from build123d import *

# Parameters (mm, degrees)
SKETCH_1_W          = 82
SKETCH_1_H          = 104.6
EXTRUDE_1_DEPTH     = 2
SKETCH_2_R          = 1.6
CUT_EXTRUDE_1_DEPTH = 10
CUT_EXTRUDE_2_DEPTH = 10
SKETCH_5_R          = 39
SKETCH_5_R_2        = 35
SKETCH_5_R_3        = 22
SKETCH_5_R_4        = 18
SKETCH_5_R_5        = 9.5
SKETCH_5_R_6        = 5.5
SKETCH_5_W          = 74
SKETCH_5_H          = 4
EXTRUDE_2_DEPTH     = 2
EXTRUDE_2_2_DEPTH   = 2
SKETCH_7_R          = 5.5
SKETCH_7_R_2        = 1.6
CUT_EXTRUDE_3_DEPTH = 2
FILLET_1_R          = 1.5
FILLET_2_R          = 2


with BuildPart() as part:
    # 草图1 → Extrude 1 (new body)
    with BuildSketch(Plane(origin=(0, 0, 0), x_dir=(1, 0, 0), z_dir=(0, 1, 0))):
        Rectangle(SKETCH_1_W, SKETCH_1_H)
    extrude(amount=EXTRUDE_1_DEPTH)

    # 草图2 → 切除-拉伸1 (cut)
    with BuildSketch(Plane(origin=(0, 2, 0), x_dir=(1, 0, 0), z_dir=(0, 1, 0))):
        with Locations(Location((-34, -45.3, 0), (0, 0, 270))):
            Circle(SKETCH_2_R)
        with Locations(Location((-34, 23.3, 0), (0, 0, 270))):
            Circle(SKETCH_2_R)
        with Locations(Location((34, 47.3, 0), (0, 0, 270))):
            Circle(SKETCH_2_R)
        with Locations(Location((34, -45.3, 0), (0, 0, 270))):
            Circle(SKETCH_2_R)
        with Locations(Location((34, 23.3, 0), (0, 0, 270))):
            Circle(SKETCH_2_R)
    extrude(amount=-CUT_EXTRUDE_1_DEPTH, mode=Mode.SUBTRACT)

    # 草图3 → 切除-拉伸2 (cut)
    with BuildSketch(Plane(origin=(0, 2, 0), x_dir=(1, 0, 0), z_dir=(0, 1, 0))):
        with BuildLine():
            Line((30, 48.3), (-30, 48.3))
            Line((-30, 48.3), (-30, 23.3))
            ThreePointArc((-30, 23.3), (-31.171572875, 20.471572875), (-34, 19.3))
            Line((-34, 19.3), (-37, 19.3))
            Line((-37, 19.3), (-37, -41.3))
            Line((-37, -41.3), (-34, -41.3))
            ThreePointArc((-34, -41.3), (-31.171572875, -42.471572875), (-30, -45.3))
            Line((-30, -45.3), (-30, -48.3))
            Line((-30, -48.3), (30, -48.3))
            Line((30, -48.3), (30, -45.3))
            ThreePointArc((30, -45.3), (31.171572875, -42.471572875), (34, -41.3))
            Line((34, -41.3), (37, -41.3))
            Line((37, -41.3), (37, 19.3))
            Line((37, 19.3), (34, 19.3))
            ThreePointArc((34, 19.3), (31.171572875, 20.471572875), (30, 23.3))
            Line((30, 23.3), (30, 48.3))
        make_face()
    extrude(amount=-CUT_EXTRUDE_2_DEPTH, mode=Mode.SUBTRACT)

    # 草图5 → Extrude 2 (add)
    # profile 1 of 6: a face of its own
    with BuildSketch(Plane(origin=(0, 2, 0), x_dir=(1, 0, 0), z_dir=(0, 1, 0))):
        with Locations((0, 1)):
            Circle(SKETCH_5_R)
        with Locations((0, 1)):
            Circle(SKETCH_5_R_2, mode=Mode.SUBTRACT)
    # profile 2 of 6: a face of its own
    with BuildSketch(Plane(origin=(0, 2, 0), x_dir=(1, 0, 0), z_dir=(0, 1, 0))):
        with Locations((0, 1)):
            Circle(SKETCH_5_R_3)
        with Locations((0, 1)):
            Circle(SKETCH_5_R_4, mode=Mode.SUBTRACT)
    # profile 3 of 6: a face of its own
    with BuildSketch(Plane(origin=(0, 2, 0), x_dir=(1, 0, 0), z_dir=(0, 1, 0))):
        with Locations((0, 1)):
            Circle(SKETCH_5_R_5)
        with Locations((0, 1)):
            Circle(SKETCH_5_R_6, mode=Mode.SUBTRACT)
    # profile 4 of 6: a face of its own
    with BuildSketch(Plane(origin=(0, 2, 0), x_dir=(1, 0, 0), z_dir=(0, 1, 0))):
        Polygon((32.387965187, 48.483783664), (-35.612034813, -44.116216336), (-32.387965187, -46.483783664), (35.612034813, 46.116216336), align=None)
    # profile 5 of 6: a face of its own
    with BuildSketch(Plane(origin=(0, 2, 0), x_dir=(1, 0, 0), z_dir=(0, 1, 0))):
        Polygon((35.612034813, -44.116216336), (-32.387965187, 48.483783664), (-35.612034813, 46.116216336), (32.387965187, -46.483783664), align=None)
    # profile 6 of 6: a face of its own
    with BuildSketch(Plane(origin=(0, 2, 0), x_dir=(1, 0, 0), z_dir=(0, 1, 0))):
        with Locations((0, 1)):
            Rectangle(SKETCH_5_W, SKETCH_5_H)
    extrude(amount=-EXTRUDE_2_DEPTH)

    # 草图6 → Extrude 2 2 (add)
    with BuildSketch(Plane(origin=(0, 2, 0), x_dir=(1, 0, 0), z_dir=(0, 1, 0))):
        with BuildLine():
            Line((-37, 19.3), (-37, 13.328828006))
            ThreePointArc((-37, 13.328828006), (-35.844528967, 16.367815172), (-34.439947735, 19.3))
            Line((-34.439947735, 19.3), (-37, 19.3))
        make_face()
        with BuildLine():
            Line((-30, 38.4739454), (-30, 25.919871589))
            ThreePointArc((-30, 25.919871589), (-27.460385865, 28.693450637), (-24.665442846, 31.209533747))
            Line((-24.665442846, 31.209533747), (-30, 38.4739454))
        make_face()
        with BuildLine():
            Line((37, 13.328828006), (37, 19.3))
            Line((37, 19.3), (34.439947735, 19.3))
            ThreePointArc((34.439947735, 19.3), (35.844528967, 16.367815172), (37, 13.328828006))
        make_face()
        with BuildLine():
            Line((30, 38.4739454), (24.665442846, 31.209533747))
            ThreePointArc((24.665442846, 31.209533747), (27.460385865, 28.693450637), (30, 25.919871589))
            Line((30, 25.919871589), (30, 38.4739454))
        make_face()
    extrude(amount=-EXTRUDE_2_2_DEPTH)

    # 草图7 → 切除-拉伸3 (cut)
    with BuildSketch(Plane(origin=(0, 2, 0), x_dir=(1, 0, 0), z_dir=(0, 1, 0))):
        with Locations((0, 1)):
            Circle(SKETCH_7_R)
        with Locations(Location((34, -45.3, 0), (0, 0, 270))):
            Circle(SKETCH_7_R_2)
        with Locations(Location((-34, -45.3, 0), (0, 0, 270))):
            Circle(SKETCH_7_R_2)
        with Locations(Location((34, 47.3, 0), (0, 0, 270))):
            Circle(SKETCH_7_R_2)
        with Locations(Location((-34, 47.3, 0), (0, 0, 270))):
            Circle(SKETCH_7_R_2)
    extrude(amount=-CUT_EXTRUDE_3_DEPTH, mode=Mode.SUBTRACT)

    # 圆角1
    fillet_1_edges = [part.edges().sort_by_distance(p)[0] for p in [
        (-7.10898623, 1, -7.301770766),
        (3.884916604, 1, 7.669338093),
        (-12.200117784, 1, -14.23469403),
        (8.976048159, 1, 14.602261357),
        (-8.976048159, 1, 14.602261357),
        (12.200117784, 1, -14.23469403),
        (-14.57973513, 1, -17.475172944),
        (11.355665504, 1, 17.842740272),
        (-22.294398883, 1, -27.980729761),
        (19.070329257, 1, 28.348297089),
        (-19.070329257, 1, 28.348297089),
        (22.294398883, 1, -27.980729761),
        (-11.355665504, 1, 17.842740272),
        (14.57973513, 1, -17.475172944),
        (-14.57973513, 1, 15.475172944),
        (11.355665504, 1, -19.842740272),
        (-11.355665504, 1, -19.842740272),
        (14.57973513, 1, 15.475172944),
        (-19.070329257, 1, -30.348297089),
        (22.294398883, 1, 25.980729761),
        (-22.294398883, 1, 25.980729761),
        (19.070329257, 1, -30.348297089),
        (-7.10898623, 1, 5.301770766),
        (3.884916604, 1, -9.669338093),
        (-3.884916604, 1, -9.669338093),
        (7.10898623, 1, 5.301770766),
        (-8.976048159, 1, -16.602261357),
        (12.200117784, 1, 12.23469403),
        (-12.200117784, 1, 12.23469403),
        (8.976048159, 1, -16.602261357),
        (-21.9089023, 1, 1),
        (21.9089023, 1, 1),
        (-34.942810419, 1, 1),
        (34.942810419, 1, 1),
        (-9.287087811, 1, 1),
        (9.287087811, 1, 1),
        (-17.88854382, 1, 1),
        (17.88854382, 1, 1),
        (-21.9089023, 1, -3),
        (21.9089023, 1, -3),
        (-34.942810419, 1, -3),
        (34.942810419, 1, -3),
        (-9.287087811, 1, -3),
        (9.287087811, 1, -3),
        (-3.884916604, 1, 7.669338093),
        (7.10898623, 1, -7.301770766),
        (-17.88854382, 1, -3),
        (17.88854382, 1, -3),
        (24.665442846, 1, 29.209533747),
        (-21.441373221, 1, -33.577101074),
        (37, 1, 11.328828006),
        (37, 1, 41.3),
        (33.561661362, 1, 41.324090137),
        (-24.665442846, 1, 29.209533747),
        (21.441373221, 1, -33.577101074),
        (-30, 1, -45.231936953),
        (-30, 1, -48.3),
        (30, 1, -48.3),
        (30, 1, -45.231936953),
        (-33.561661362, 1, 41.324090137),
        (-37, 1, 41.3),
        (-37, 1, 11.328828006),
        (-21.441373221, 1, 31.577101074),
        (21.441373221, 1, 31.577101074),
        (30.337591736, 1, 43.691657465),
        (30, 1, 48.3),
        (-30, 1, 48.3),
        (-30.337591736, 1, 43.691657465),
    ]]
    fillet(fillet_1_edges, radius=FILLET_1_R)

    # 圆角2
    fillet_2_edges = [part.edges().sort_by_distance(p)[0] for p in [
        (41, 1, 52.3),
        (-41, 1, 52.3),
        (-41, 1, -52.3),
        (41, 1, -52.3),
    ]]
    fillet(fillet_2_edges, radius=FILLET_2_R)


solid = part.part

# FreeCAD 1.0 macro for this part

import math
import FreeCAD as App
import Part
import Sketcher


def edges_at(feature, points):
    """Names of the edges that pass closest to the given points."""
    edges = feature.Shape.Edges
    near = lambda p: min(range(len(edges)), key=lambda i: edges[i].distToShape(Part.Vertex(*p))[0])
    return sorted({f"Edge{near(p) + 1}" for p in points})

doc = App.newDocument("Part")
body = doc.addObject("PartDesign::Body", "Body")

# Sketch on XZ plane
sketch1 = body.newObject("Sketcher::SketchObject", "Sketch")
sketch1.AttachmentSupport = (doc.getObject("XZ_Plane"), [""])
sketch1.MapMode = "FlatFace"
sketch1.addGeometry([
    Part.LineSegment(App.Vector(-41, -52.3, 0), App.Vector(-41, 52.3, 0)),
    Part.LineSegment(App.Vector(-41, 52.3, 0), App.Vector(41, 52.3, 0)),
    Part.LineSegment(App.Vector(41, 52.3, 0), App.Vector(41, -52.3, 0)),
    Part.LineSegment(App.Vector(41, -52.3, 0), App.Vector(-41, -52.3, 0)),
], False)
sketch1.addConstraint([
    Sketcher.Constraint("Coincident", 0, 2, 1, 1),
    Sketcher.Constraint("Coincident", 1, 2, 2, 1),
    Sketcher.Constraint("Coincident", 2, 2, 3, 1),
    Sketcher.Constraint("Coincident", 3, 2, 0, 1),
    Sketcher.Constraint("Vertical", 0),
    Sketcher.Constraint("Horizontal", 1),
    Sketcher.Constraint("Vertical", 2),
    Sketcher.Constraint("Horizontal", 3),
    Sketcher.Constraint("Symmetric", 0, 2, 2, 2, -1, 1),
    Sketcher.Constraint("DistanceX", 1, 1, 1, 2, 82.0),
    Sketcher.Constraint("DistanceY", 0, 1, 0, 2, 104.6),
])
pad1 = body.newObject("PartDesign::Pad", "Pad")
pad1.Profile = sketch1
pad1.Length = 2
pad1.Reversed = True

# Sketch on XZ plane
sketch2 = body.newObject("Sketcher::SketchObject", "Sketch001")
sketch2.AttachmentSupport = (doc.getObject("XZ_Plane"), [""])
sketch2.MapMode = "FlatFace"
sketch2.AttachmentOffset = App.Placement(App.Vector(0, 0, -2), App.Rotation())
sketch2.addGeometry([
    Part.Circle(App.Vector(-34, 45.3, 0), App.Vector(0, 0, 1), 1.6),  # 0
    Part.Circle(App.Vector(-34, -23.3, 0), App.Vector(0, 0, 1), 1.6),  # 1
    Part.Circle(App.Vector(34, -47.3, 0), App.Vector(0, 0, 1), 1.6),  # 2
    Part.Circle(App.Vector(34, 45.3, 0), App.Vector(0, 0, 1), 1.6),  # 3
    Part.Circle(App.Vector(34, -23.3, 0), App.Vector(0, 0, 1), 1.6),  # 4
], False)
sketch2.addConstraint([
    Sketcher.Constraint("Equal", 0, 1),
    Sketcher.Constraint("Equal", 1, 2),
    Sketcher.Constraint("Equal", 2, 3),
    Sketcher.Constraint("Equal", 3, 4),
    Sketcher.Constraint("Symmetric", 0, 3, 3, 3, -2),
    Sketcher.Constraint("Symmetric", 1, 3, 4, 3, -2),
    Sketcher.Constraint("Vertical", 0, 3, 1, 3),
    Sketcher.Constraint("Vertical", 2, 3, 3, 3),
    Sketcher.Constraint("Diameter", 0, 3.2),
    Sketcher.Constraint("DistanceX", 0, 3, -1, 1, 34.0),
    Sketcher.Constraint("DistanceY", 2, 3, 1, 3, 24.0),
    Sketcher.Constraint("DistanceY", -1, 1, 0, 3, 45.3),
    Sketcher.Constraint("DistanceY", 1, 3, -1, 1, 23.3),
])
pocket1 = body.newObject("PartDesign::Pocket", "Pocket")
pocket1.Profile = sketch2
pocket1.Length = 10
pocket1.Reversed = True

# Sketch on XZ plane
sketch3 = body.newObject("Sketcher::SketchObject", "Sketch002")
sketch3.AttachmentSupport = (doc.getObject("XZ_Plane"), [""])
sketch3.MapMode = "FlatFace"
sketch3.AttachmentOffset = App.Placement(App.Vector(0, 0, -2), App.Rotation())
sketch3.addGeometry([
    Part.LineSegment(App.Vector(30, -48.3, 0), App.Vector(-30, -48.3, 0)),  # 0
    Part.LineSegment(App.Vector(-30, -48.3, 0), App.Vector(-30, -23.3, 0)),  # 1
    Part.ArcOfCircle(Part.Circle(App.Vector(-34, -23.3, 0), App.Vector(0, 0, 1), 4), math.radians(0), math.radians(90)),  # 2
    Part.LineSegment(App.Vector(-34, -19.3, 0), App.Vector(-37, -19.3, 0)),  # 3
    Part.LineSegment(App.Vector(-37, -19.3, 0), App.Vector(-37, 41.3, 0)),  # 4
    Part.LineSegment(App.Vector(-37, 41.3, 0), App.Vector(-34, 41.3, 0)),  # 5
    Part.ArcOfCircle(Part.Circle(App.Vector(-34, 45.3, 0), App.Vector(0, 0, 1), 4), math.radians(-90), math.radians(0)),  # 6
    Part.LineSegment(App.Vector(-30, 45.3, 0), App.Vector(-30, 48.3, 0)),  # 7
    Part.LineSegment(App.Vector(-30, 48.3, 0), App.Vector(30, 48.3, 0)),  # 8
    Part.LineSegment(App.Vector(30, 48.3, 0), App.Vector(30, 45.3, 0)),  # 9
    Part.ArcOfCircle(Part.Circle(App.Vector(34, 45.3, 0), App.Vector(0, 0, 1), 4), math.radians(180), math.radians(270)),  # 10
    Part.LineSegment(App.Vector(34, 41.3, 0), App.Vector(37, 41.3, 0)),  # 11
    Part.LineSegment(App.Vector(37, 41.3, 0), App.Vector(37, -19.3, 0)),  # 12
    Part.LineSegment(App.Vector(37, -19.3, 0), App.Vector(34, -19.3, 0)),  # 13
    Part.ArcOfCircle(Part.Circle(App.Vector(34, -23.3, 0), App.Vector(0, 0, 1), 4), math.radians(90), math.radians(180)),  # 14
    Part.LineSegment(App.Vector(30, -23.3, 0), App.Vector(30, -48.3, 0)),  # 15
], False)
sketch3.addConstraint([
    Sketcher.Constraint("Coincident", 0, 2, 1, 1),
    Sketcher.Constraint("Tangent", 1, 2, 2, 1),
    Sketcher.Constraint("Tangent", 2, 2, 3, 1),
    Sketcher.Constraint("Coincident", 3, 2, 4, 1),
    Sketcher.Constraint("Coincident", 4, 2, 5, 1),
    Sketcher.Constraint("Tangent", 5, 2, 6, 1),
    Sketcher.Constraint("Tangent", 6, 2, 7, 1),
    Sketcher.Constraint("Coincident", 7, 2, 8, 1),
    Sketcher.Constraint("Coincident", 8, 2, 9, 1),
    Sketcher.Constraint("Tangent", 9, 2, 10, 1),
    Sketcher.Constraint("Tangent", 10, 2, 11, 1),
    Sketcher.Constraint("Coincident", 11, 2, 12, 1),
    Sketcher.Constraint("Coincident", 12, 2, 13, 1),
    Sketcher.Constraint("Tangent", 13, 2, 14, 1),
    Sketcher.Constraint("Tangent", 14, 2, 15, 1),
    Sketcher.Constraint("Coincident", 15, 2, 0, 1),
    Sketcher.Constraint("Horizontal", 0),
    Sketcher.Constraint("Vertical", 1),
    Sketcher.Constraint("Horizontal", 3),
    Sketcher.Constraint("Vertical", 4),
    Sketcher.Constraint("Horizontal", 5),
    Sketcher.Constraint("Vertical", 7),
    Sketcher.Constraint("Horizontal", 8),
    Sketcher.Constraint("Vertical", 9),
    Sketcher.Constraint("Horizontal", 11),
    Sketcher.Constraint("Vertical", 12),
    Sketcher.Constraint("Horizontal", 13),
    Sketcher.Constraint("Vertical", 15),
    Sketcher.Constraint("Equal", 2, 6),
    Sketcher.Constraint("Equal", 6, 10),
    Sketcher.Constraint("Equal", 10, 14),
    Sketcher.Constraint("Symmetric", 0, 2, 8, 2, -1, 1),
    Sketcher.Constraint("Symmetric", 6, 3, 10, 3, -2),
    Sketcher.Constraint("Symmetric", 2, 3, 14, 3, -2),
    Sketcher.Constraint("Equal", 5, 11),
    Sketcher.Constraint("Equal", 13, 7),
    Sketcher.Constraint("Radius", 2, 4.0),
    Sketcher.Constraint("DistanceX", 0, 2, 0, 1, 60.0),
    Sketcher.Constraint("DistanceX", 3, 2, 3, 1, 3.0),
    Sketcher.Constraint("DistanceY", 1, 1, 1, 2, 25.0),
    Sketcher.Constraint("DistanceY", 4, 1, 4, 2, 60.6),
])
pocket2 = body.newObject("PartDesign::Pocket", "Pocket001")
pocket2.Profile = sketch3
pocket2.Length = 10
pocket2.Reversed = True

# Sketch on XZ plane
sketch4 = body.newObject("Sketcher::SketchObject", "Sketch003")
sketch4.AttachmentSupport = (doc.getObject("XZ_Plane"), [""])
sketch4.MapMode = "FlatFace"
sketch4.AttachmentOffset = App.Placement(App.Vector(0, 0, -2), App.Rotation())
sketch4.addGeometry([
    Part.ArcOfCircle(Part.Circle(App.Vector(0, -1, 0), App.Vector(0, 0, 1), 39), math.radians(-50.769092), math.radians(50.769092)),  # 0
    Part.LineSegment(App.Vector(24.665443, -31.209534, 0), App.Vector(35.612035, -46.116216, 0)),  # 1
    Part.LineSegment(App.Vector(35.612035, -46.116216, 0), App.Vector(32.387965, -48.483784, 0)),  # 2
    Part.LineSegment(App.Vector(32.387965, -48.483784, 0), App.Vector(21.441373, -33.577101, 0)),  # 3
    Part.ArcOfCircle(Part.Circle(App.Vector(0, -1, 0), App.Vector(0, 0, 1), 39), math.radians(-123.351839), math.radians(-56.648161)),  # 4
    Part.LineSegment(App.Vector(-21.441373, -33.577101, 0), App.Vector(-32.387965, -48.483784, 0)),  # 5
    Part.LineSegment(App.Vector(-32.387965, -48.483784, 0), App.Vector(-35.612035, -46.116216, 0)),  # 6
    Part.LineSegment(App.Vector(-35.612035, -46.116216, 0), App.Vector(-24.665443, -31.209534, 0)),  # 7
    Part.ArcOfCircle(Part.Circle(App.Vector(0, -1, 0), App.Vector(0, 0, 1), 39), math.radians(129.230908), math.radians(230.769092)),  # 8
    Part.LineSegment(App.Vector(-24.665443, 29.209534, 0), App.Vector(-35.612035, 44.116216, 0)),  # 9
    Part.LineSegment(App.Vector(-35.612035, 44.116216, 0), App.Vector(-32.387965, 46.483784, 0)),  # 10
    Part.LineSegment(App.Vector(-32.387965, 46.483784, 0), App.Vector(-21.441373, 31.577101, 0)),  # 11
    Part.ArcOfCircle(Part.Circle(App.Vector(0, -1, 0), App.Vector(0, 0, 1), 39), math.radians(56.648161), math.radians(123.351839)),  # 12
    Part.LineSegment(App.Vector(21.441373, 31.577101, 0), App.Vector(32.387965, 46.483784, 0)),  # 13
    Part.LineSegment(App.Vector(32.387965, 46.483784, 0), App.Vector(35.612035, 44.116216, 0)),  # 14
    Part.LineSegment(App.Vector(35.612035, 44.116216, 0), App.Vector(24.665443, 29.209534, 0)),  # 15
    Part.ArcOfCircle(Part.Circle(App.Vector(0, -1, 0), App.Vector(0, 0, 1), 35), math.radians(3.275829), math.radians(50.432797)),  # 16
    Part.LineSegment(App.Vector(22.294399, 25.98073, 0), App.Vector(14.579735, 15.475173, 0)),  # 17
    Part.ArcOfCircle(Part.Circle(App.Vector(0, -1, 0), App.Vector(0, 0, 1), 22), math.radians(5.215909), math.radians(48.492718)),  # 18
    Part.LineSegment(App.Vector(21.908902, 1, 0), App.Vector(34.94281, 1, 0)),  # 19
    Part.ArcOfCircle(Part.Circle(App.Vector(0, -1, 0), App.Vector(0, 0, 1), 35), math.radians(-50.432797), math.radians(-3.275829)),  # 20
    Part.LineSegment(App.Vector(34.94281, -3, 0), App.Vector(21.908902, -3, 0)),  # 21
    Part.ArcOfCircle(Part.Circle(App.Vector(0, -1, 0), App.Vector(0, 0, 1), 22), math.radians(-48.492718), math.radians(-5.215909)),  # 22
    Part.LineSegment(App.Vector(14.579735, -17.475173, 0), App.Vector(22.294399, -27.98073, 0)),  # 23
    Part.ArcOfCircle(Part.Circle(App.Vector(0, -1, 0), App.Vector(0, 0, 1), 35), math.radians(56.984455), math.radians(123.015545)),  # 24
    Part.LineSegment(App.Vector(-19.070329, 28.348297, 0), App.Vector(-11.355666, 17.84274, 0)),  # 25
    Part.ArcOfCircle(Part.Circle(App.Vector(0, -1, 0), App.Vector(0, 0, 1), 22), math.radians(58.924535), math.radians(121.075465)),  # 26
    Part.LineSegment(App.Vector(11.355666, 17.84274, 0), App.Vector(19.070329, 28.348297, 0)),  # 27
    Part.LineSegment(App.Vector(19.070329, -30.348297, 0), App.Vector(11.355666, -19.84274, 0)),  # 28
    Part.ArcOfCircle(Part.Circle(App.Vector(0, -1, 0), App.Vector(0, 0, 1), 22), math.radians(-121.075465), math.radians(-58.924535)),  # 29
    Part.LineSegment(App.Vector(-11.355666, -19.84274, 0), App.Vector(-19.070329, -30.348297, 0)),  # 30
    Part.ArcOfCircle(Part.Circle(App.Vector(0, -1, 0), App.Vector(0, 0, 1), 35), math.radians(-123.015545), math.radians(-56.984455)),  # 31
    Part.ArcOfCircle(Part.Circle(App.Vector(0, -1, 0), App.Vector(0, 0, 1), 35), math.radians(-176.724171), math.radians(-129.567203)),  # 32
    Part.LineSegment(App.Vector(-22.294399, -27.98073, 0), App.Vector(-14.579735, -17.475173, 0)),  # 33
    Part.ArcOfCircle(Part.Circle(App.Vector(0, -1, 0), App.Vector(0, 0, 1), 22), math.radians(-174.784091), math.radians(-131.507282)),  # 34
    Part.LineSegment(App.Vector(-21.908902, -3, 0), App.Vector(-34.94281, -3, 0)),  # 35
    Part.ArcOfCircle(Part.Circle(App.Vector(0, -1, 0), App.Vector(0, 0, 1), 35), math.radians(129.567203), math.radians(176.724171)),  # 36
    Part.LineSegment(App.Vector(-34.94281, 1, 0), App.Vector(-21.908902, 1, 0)),  # 37
    Part.ArcOfCircle(Part.Circle(App.Vector(0, -1, 0), App.Vector(0, 0, 1), 22), math.radians(131.507282), math.radians(174.784091)),  # 38
    Part.LineSegment(App.Vector(-14.579735, 15.475173, 0), App.Vector(-22.294399, 25.98073, 0)),  # 39
    Part.ArcOfCircle(Part.Circle(App.Vector(0, -1, 0), App.Vector(0, 0, 1), 18), math.radians(6.37937), math.radians(47.329256)),  # 40
    Part.LineSegment(App.Vector(12.200118, 12.234694, 0), App.Vector(7.108986, 5.301771, 0)),  # 41
    Part.ArcOfCircle(Part.Circle(App.Vector(0, -1, 0), App.Vector(0, 0, 1), 9.5), math.radians(12.153197), math.radians(41.555429)),  # 42
    Part.LineSegment(App.Vector(9.287088, 1, 0), App.Vector(17.888544, 1, 0)),  # 43
    Part.ArcOfCircle(Part.Circle(App.Vector(0, -1, 0), App.Vector(0, 0, 1), 18), math.radians(60.087997), math.radians(119.912003)),  # 44
    Part.LineSegment(App.Vector(-8.976048, 14.602261, 0), App.Vector(-3.884917, 7.669338, 0)),  # 45
    Part.ArcOfCircle(Part.Circle(App.Vector(0, -1, 0), App.Vector(0, 0, 1), 9.5), math.radians(65.861824), math.radians(114.138176)),  # 46
    Part.LineSegment(App.Vector(3.884917, 7.669338, 0), App.Vector(8.976048, 14.602261, 0)),  # 47
    Part.ArcOfCircle(Part.Circle(App.Vector(0, -1, 0), App.Vector(0, 0, 1), 18), math.radians(-47.329256), math.radians(-6.37937)),  # 48
    Part.LineSegment(App.Vector(17.888544, -3, 0), App.Vector(9.287088, -3, 0)),  # 49
    Part.ArcOfCircle(Part.Circle(App.Vector(0, -1, 0), App.Vector(0, 0, 1), 9.5), math.radians(-41.555429), math.radians(-12.153197)),  # 50
    Part.LineSegment(App.Vector(7.108986, -7.301771, 0), App.Vector(12.200118, -14.234694, 0)),  # 51
    Part.LineSegment(App.Vector(8.976048, -16.602261, 0), App.Vector(3.884917, -9.669338, 0)),  # 52
    Part.ArcOfCircle(Part.Circle(App.Vector(0, -1, 0), App.Vector(0, 0, 1), 9.5), math.radians(-114.138176), math.radians(-65.861824)),  # 53
    Part.LineSegment(App.Vector(-3.884917, -9.669338, 0), App.Vector(-8.976048, -16.602261, 0)),  # 54
    Part.ArcOfCircle(Part.Circle(App.Vector(0, -1, 0), App.Vector(0, 0, 1), 18), math.radians(-119.912003), math.radians(-60.087997)),  # 55
    Part.LineSegment(App.Vector(-7.108986, 5.301771, 0), App.Vector(-12.200118, 12.234694, 0)),  # 56
    Part.ArcOfCircle(Part.Circle(App.Vector(0, -1, 0), App.Vector(0, 0, 1), 18), math.radians(132.670744), math.radians(173.62063)),  # 57
    Part.LineSegment(App.Vector(-17.888544, 1, 0), App.Vector(-9.287088, 1, 0)),  # 58
    Part.ArcOfCircle(Part.Circle(App.Vector(0, -1, 0), App.Vector(0, 0, 1), 9.5), math.radians(138.444571), math.radians(167.846803)),  # 59
    Part.ArcOfCircle(Part.Circle(App.Vector(0, -1, 0), App.Vector(0, 0, 1), 5.5), math.radians(21.323686), math.radians(32.38494)),  # 60
    Part.LineSegment(App.Vector(4.644578, 1.945827, 0), App.Vector(3.950018, 1, 0)),  # 61
    Part.LineSegment(App.Vector(3.950018, 1, 0), App.Vector(5.123475, 1, 0)),  # 62
    Part.ArcOfCircle(Part.Circle(App.Vector(0, -1, 0), App.Vector(0, 0, 1), 5.5), math.radians(75.032313), math.radians(104.967687)),  # 63
    Part.LineSegment(App.Vector(-1.420508, 4.313394, 0), App.Vector(0, 2.378996, 0)),  # 64
    Part.LineSegment(App.Vector(0, 2.378996, 0), App.Vector(1.420508, 4.313394, 0)),  # 65
    Part.ArcOfCircle(Part.Circle(App.Vector(0, -1, 0), App.Vector(0, 0, 1), 5.5), math.radians(-32.38494), math.radians(-21.323686)),  # 66
    Part.LineSegment(App.Vector(5.123475, -3, 0), App.Vector(3.950018, -3, 0)),  # 67
    Part.LineSegment(App.Vector(3.950018, -3, 0), App.Vector(4.644578, -3.945827, 0)),  # 68
    Part.LineSegment(App.Vector(1.420508, -6.313394, 0), App.Vector(0, -4.378996, 0)),  # 69
    Part.LineSegment(App.Vector(0, -4.378996, 0), App.Vector(-1.420508, -6.313394, 0)),  # 70
    Part.ArcOfCircle(Part.Circle(App.Vector(0, -1, 0), App.Vector(0, 0, 1), 5.5), math.radians(-104.967687), math.radians(-75.032313)),  # 71
    Part.ArcOfCircle(Part.Circle(App.Vector(0, -1, 0), App.Vector(0, 0, 1), 18), math.radians(-173.62063), math.radians(-132.670744)),  # 72
    Part.LineSegment(App.Vector(-12.200118, -14.234694, 0), App.Vector(-7.108986, -7.301771, 0)),  # 73
    Part.ArcOfCircle(Part.Circle(App.Vector(0, -1, 0), App.Vector(0, 0, 1), 9.5), math.radians(-167.846803), math.radians(-138.444571)),  # 74
    Part.LineSegment(App.Vector(-9.287088, -3, 0), App.Vector(-17.888544, -3, 0)),  # 75
    Part.LineSegment(App.Vector(-3.950018, 1, 0), App.Vector(-4.644578, 1.945827, 0)),  # 76
    Part.ArcOfCircle(Part.Circle(App.Vector(0, -1, 0), App.Vector(0, 0, 1), 5.5), math.radians(147.61506), math.radians(158.676314)),  # 77
    Part.LineSegment(App.Vector(-5.123475, 1, 0), App.Vector(-3.950018, 1, 0)),  # 78
    Part.LineSegment(App.Vector(-4.644578, -3.945827, 0), App.Vector(-3.950018, -3, 0)),  # 79
    Part.LineSegment(App.Vector(-3.950018, -3, 0), App.Vector(-5.123475, -3, 0)),  # 80
    Part.ArcOfCircle(Part.Circle(App.Vector(0, -1, 0), App.Vector(0, 0, 1), 5.5), math.radians(-158.676314), math.radians(-147.61506)),  # 81
], False)
sketch4.addConstraint([
    Sketcher.Constraint("Coincident", 0, 1, 1, 1),
    Sketcher.Constraint("Coincident", 1, 2, 2, 1),
    Sketcher.Constraint("Coincident", 2, 2, 3, 1),
    Sketcher.Constraint("Coincident", 3, 2, 4, 2),
    Sketcher.Constraint("Coincident", 4, 1, 5, 1),
    Sketcher.Constraint("Coincident", 5, 2, 6, 1),
    Sketcher.Constraint("Coincident", 6, 2, 7, 1),
    Sketcher.Constraint("Coincident", 7, 2, 8, 2),
    Sketcher.Constraint("Coincident", 8, 1, 9, 1),
    Sketcher.Constraint("Coincident", 9, 2, 10, 1),
    Sketcher.Constraint("Coincident", 10, 2, 11, 1),
    Sketcher.Constraint("Coincident", 11, 2, 12, 2),
    Sketcher.Constraint("Coincident", 12, 1, 13, 1),
    Sketcher.Constraint("Coincident", 13, 2, 14, 1),
    Sketcher.Constraint("Coincident", 14, 2, 15, 1),
    Sketcher.Constraint("Coincident", 15, 2, 0, 2),
    Sketcher.Constraint("Coincident", 16, 2, 17, 1),
    Sketcher.Constraint("Coincident", 17, 2, 18, 2),
    Sketcher.Constraint("Coincident", 18, 1, 19, 1),
    Sketcher.Constraint("Coincident", 19, 2, 16, 1),
    Sketcher.Constraint("Coincident", 20, 2, 21, 1),
    Sketcher.Constraint("Coincident", 21, 2, 22, 2),
    Sketcher.Constraint("Coincident", 22, 1, 23, 1),
    Sketcher.Constraint("Coincident", 23, 2, 20, 1),
    Sketcher.Constraint("Coincident", 24, 2, 25, 1),
    Sketcher.Constraint("Coincident", 25, 2, 26, 2),
    Sketcher.Constraint("Coincident", 26, 1, 27, 1),
    Sketcher.Constraint("Coincident", 27, 2, 24, 1),
    Sketcher.Constraint("Coincident", 28, 2, 29, 2),
    Sketcher.Constraint("Coincident", 29, 1, 30, 1),
    Sketcher.Constraint("Coincident", 30, 2, 31, 1),
    Sketcher.Constraint("Coincident", 31, 2, 28, 1),
    Sketcher.Constraint("Coincident", 32, 2, 33, 1),
    Sketcher.Constraint("Coincident", 33, 2, 34, 2),
    Sketcher.Constraint("Coincident", 34, 1, 35, 1),
    Sketcher.Constraint("Coincident", 35, 2, 32, 1),
    Sketcher.Constraint("Coincident", 36, 2, 37, 1),
    Sketcher.Constraint("Coincident", 37, 2, 38, 2),
    Sketcher.Constraint("Coincident", 38, 1, 39, 1),
    Sketcher.Constraint("Coincident", 39, 2, 36, 1),
    Sketcher.Constraint("Coincident", 40, 2, 41, 1),
    Sketcher.Constraint("Coincident", 41, 2, 42, 2),
    Sketcher.Constraint("Coincident", 42, 1, 43, 1),
    Sketcher.Constraint("Coincident", 43, 2, 40, 1),
    Sketcher.Constraint("Coincident", 44, 2, 45, 1),
    Sketcher.Constraint("Coincident", 45, 2, 46, 2),
    Sketcher.Constraint("Coincident", 46, 1, 47, 1),
    Sketcher.Constraint("Coincident", 47, 2, 44, 1),
    Sketcher.Constraint("Coincident", 48, 2, 49, 1),
    Sketcher.Constraint("Coincident", 49, 2, 50, 2),
    Sketcher.Constraint("Coincident", 50, 1, 51, 1),
    Sketcher.Constraint("Coincident", 51, 2, 48, 1),
    Sketcher.Constraint("Coincident", 52, 2, 53, 2),
    Sketcher.Constraint("Coincident", 53, 1, 54, 1),
    Sketcher.Constraint("Coincident", 54, 2, 55, 1),
    Sketcher.Constraint("Coincident", 55, 2, 52, 1),
    Sketcher.Constraint("Coincident", 56, 2, 57, 1),
    Sketcher.Constraint("Coincident", 57, 2, 58, 1),
    Sketcher.Constraint("Coincident", 58, 2, 59, 2),
    Sketcher.Constraint("Coincident", 59, 1, 56, 1),
    Sketcher.Constraint("Coincident", 60, 2, 61, 1),
    Sketcher.Constraint("Coincident", 61, 2, 62, 1),
    Sketcher.Constraint("Coincident", 62, 2, 60, 1),
    Sketcher.Constraint("Coincident", 63, 2, 64, 1),
    Sketcher.Constraint("Coincident", 64, 2, 65, 1),
    Sketcher.Constraint("Coincident", 65, 2, 63, 1),
    Sketcher.Constraint("Coincident", 66, 2, 67, 1),
    Sketcher.Constraint("Coincident", 67, 2, 68, 1),
    Sketcher.Constraint("Coincident", 68, 2, 66, 1),
    Sketcher.Constraint("Coincident", 69, 2, 70, 1),
    Sketcher.Constraint("Coincident", 70, 2, 71, 1),
    Sketcher.Constraint("Coincident", 71, 2, 69, 1),
    Sketcher.Constraint("Coincident", 72, 2, 73, 1),
    Sketcher.Constraint("Coincident", 73, 2, 74, 2),
    Sketcher.Constraint("Coincident", 74, 1, 75, 1),
    Sketcher.Constraint("Coincident", 75, 2, 72, 1),
    Sketcher.Constraint("Coincident", 76, 2, 77, 1),
    Sketcher.Constraint("Coincident", 77, 2, 78, 1),
    Sketcher.Constraint("Coincident", 78, 2, 76, 1),
    Sketcher.Constraint("Coincident", 79, 2, 80, 1),
    Sketcher.Constraint("Coincident", 80, 2, 81, 1),
    Sketcher.Constraint("Coincident", 81, 2, 79, 1),
    Sketcher.Constraint("Horizontal", 19),
    Sketcher.Constraint("Horizontal", 21),
    Sketcher.Constraint("Horizontal", 35),
    Sketcher.Constraint("Horizontal", 37),
    Sketcher.Constraint("Horizontal", 43),
    Sketcher.Constraint("Horizontal", 49),
    Sketcher.Constraint("Horizontal", 58),
    Sketcher.Constraint("Horizontal", 62),
    Sketcher.Constraint("Horizontal", 67),
    Sketcher.Constraint("Horizontal", 75),
    Sketcher.Constraint("Horizontal", 78),
    Sketcher.Constraint("Horizontal", 80),
    Sketcher.Constraint("Coincident", 4, 3, 0, 3),
    Sketcher.Constraint("Coincident", 8, 3, 0, 3),
    Sketcher.Constraint("Coincident", 12, 3, 0, 3),
    Sketcher.Constraint("Coincident", 16, 3, 0, 3),
    Sketcher.Constraint("Coincident", 18, 3, 0, 3),
    Sketcher.Constraint("Coincident", 20, 3, 0, 3),
    Sketcher.Constraint("Coincident", 22, 3, 0, 3),
    Sketcher.Constraint("Coincident", 24, 3, 0, 3),
    Sketcher.Constraint("Coincident", 26, 3, 0, 3),
    Sketcher.Constraint("Coincident", 29, 3, 0, 3),
    Sketcher.Constraint("Coincident", 31, 3, 0, 3),
    Sketcher.Constraint("Coincident", 32, 3, 0, 3),
    Sketcher.Constraint("Coincident", 34, 3, 0, 3),
    Sketcher.Constraint("Coincident", 36, 3, 0, 3),
    Sketcher.Constraint("Coincident", 38, 3, 0, 3),
    Sketcher.Constraint("Coincident", 40, 3, 0, 3),
    Sketcher.Constraint("Coincident", 42, 3, 0, 3),
    Sketcher.Constraint("Coincident", 44, 3, 0, 3),
    Sketcher.Constraint("Coincident", 46, 3, 0, 3),
    Sketcher.Constraint("Coincident", 48, 3, 0, 3),
    Sketcher.Constraint("Coincident", 50, 3, 0, 3),
    Sketcher.Constraint("Coincident", 53, 3, 0, 3),
    Sketcher.Constraint("Coincident", 55, 3, 0, 3),
    Sketcher.Constraint("Coincident", 57, 3, 0, 3),
    Sketcher.Constraint("Coincident", 59, 3, 0, 3),
    Sketcher.Constraint("Coincident", 60, 3, 0, 3),
    Sketcher.Constraint("Coincident", 63, 3, 0, 3),
    Sketcher.Constraint("Coincident", 66, 3, 0, 3),
    Sketcher.Constraint("Coincident", 71, 3, 0, 3),
    Sketcher.Constraint("Coincident", 72, 3, 0, 3),
    Sketcher.Constraint("Coincident", 74, 3, 0, 3),
    Sketcher.Constraint("Coincident", 77, 3, 0, 3),
    Sketcher.Constraint("Coincident", 81, 3, 0, 3),
    Sketcher.Constraint("Equal", 0, 4),
    Sketcher.Constraint("Equal", 4, 8),
    Sketcher.Constraint("Equal", 8, 12),
    Sketcher.Constraint("Equal", 16, 20),
    Sketcher.Constraint("Equal", 18, 22),
    Sketcher.Constraint("Equal", 20, 24),
    Sketcher.Constraint("Equal", 22, 26),
    Sketcher.Constraint("Equal", 26, 29),
    Sketcher.Constraint("Equal", 24, 31),
    Sketcher.Constraint("Equal", 31, 32),
    Sketcher.Constraint("Equal", 29, 34),
    Sketcher.Constraint("Equal", 32, 36),
    Sketcher.Constraint("Equal", 34, 38),
    Sketcher.Constraint("Equal", 40, 44),
    Sketcher.Constraint("Equal", 42, 46),
    Sketcher.Constraint("Equal", 44, 48),
    Sketcher.Constraint("Equal", 46, 50),
    Sketcher.Constraint("Equal", 50, 53),
    Sketcher.Constraint("Equal", 48, 55),
    Sketcher.Constraint("Equal", 55, 57),
    Sketcher.Constraint("Equal", 53, 59),
    Sketcher.Constraint("Equal", 60, 63),
    Sketcher.Constraint("Equal", 63, 66),
    Sketcher.Constraint("Equal", 66, 71),
    Sketcher.Constraint("Equal", 57, 72),
    Sketcher.Constraint("Equal", 59, 74),
    Sketcher.Constraint("Equal", 71, 77),
    Sketcher.Constraint("Equal", 77, 81),
    Sketcher.Constraint("Symmetric", 3, 2, 4, 1, -2),
    Sketcher.Constraint("Symmetric", 2, 2, 5, 2, -2),
    Sketcher.Constraint("Symmetric", 1, 2, 6, 2, -2),
    Sketcher.Constraint("Symmetric", 10, 2, 13, 2, -2),
    Sketcher.Constraint("Symmetric", 9, 2, 14, 2, -2),
    Sketcher.Constraint("Symmetric", 61, 2, 78, 2, -2),
    Sketcher.Constraint("Symmetric", 67, 2, 79, 2, -2),
    Sketcher.Constraint("PointOnObject", 64, 2, -2),
    Sketcher.Constraint("PointOnObject", 69, 2, -2),
    Sketcher.Constraint("Perpendicular", 1, 2),
    Sketcher.Constraint("Perpendicular", 2, 3),
    Sketcher.Constraint("Perpendicular", 6, 7),
    Sketcher.Constraint("Parallel", 3, 9),
    Sketcher.Constraint("Perpendicular", 9, 10),
    Sketcher.Constraint("Perpendicular", 10, 11),
    Sketcher.Constraint("Parallel", 7, 13),
    Sketcher.Constraint("Perpendicular", 14, 15),
    Sketcher.Constraint("Parallel", 15, 17),
    Sketcher.Constraint("Parallel", 11, 23),
    Sketcher.Constraint("Parallel", 23, 25),
    Sketcher.Constraint("Parallel", 17, 27),
    Sketcher.Constraint("Parallel", 25, 28),
    Sketcher.Constraint("Parallel", 27, 30),
    Sketcher.Constraint("Parallel", 30, 33),
    Sketcher.Constraint("Parallel", 28, 39),
    Sketcher.Constraint("Parallel", 33, 41),
    Sketcher.Constraint("Parallel", 39, 45),
    Sketcher.Constraint("Parallel", 41, 47),
    Sketcher.Constraint("Parallel", 45, 51),
    Sketcher.Constraint("Parallel", 51, 52),
    Sketcher.Constraint("Parallel", 47, 54),
    Sketcher.Constraint("Parallel", 52, 56),
    Sketcher.Constraint("Parallel", 54, 61),
    Sketcher.Constraint("Parallel", 56, 64),
    Sketcher.Constraint("Parallel", 61, 65),
    Sketcher.Constraint("Parallel", 64, 68),
    Sketcher.Constraint("Parallel", 68, 69),
    Sketcher.Constraint("Parallel", 65, 70),
    Sketcher.Constraint("Parallel", 70, 73),
    Sketcher.Constraint("Parallel", 69, 76),
    Sketcher.Constraint("Parallel", 73, 79),
    Sketcher.Constraint("Horizontal", 25, 2, 26, 1),
    Sketcher.Constraint("Horizontal", 28, 2, 29, 1),
    Sketcher.Constraint("Horizontal", 23, 2, 32, 2),
    Sketcher.Constraint("Horizontal", 21, 2, 34, 1),
    Sketcher.Constraint("Horizontal", 19, 2, 36, 2),
    Sketcher.Constraint("Horizontal", 17, 2, 38, 1),
    Sketcher.Constraint("Horizontal", 37, 2, 42, 1),
    Sketcher.Constraint("Horizontal", 45, 2, 46, 1),
    Sketcher.Constraint("Horizontal", 35, 2, 48, 2),
    Sketcher.Constraint("Horizontal", 52, 2, 53, 1),
    Sketcher.Constraint("Horizontal", 40, 2, 56, 2),
    Sketcher.Constraint("Horizontal", 43, 2, 57, 2),
    Sketcher.Constraint("Horizontal", 58, 2, 61, 2),
    Sketcher.Constraint("Horizontal", 49, 2, 66, 2),
    Sketcher.Constraint("Horizontal", 51, 2, 72, 2),
    Sketcher.Constraint("Horizontal", 67, 2, 74, 1),
    Sketcher.Constraint("Vertical", 7, 2, 8, 1),
    Sketcher.Constraint("Vertical", 6, 2, 9, 2),
    Sketcher.Constraint("Vertical", 5, 2, 10, 2),
    Sketcher.Constraint("Vertical", 19, 2, 20, 2),
    Sketcher.Constraint("Vertical", 17, 2, 22, 1),
    Sketcher.Constraint("Vertical", 26, 1, 28, 2),
    Sketcher.Constraint("Vertical", 41, 2, 50, 1),
    Sketcher.Constraint("Vertical", 46, 1, 52, 2),
    Sketcher.Constraint("Vertical", 61, 2, 67, 2),
    Sketcher.Constraint("Vertical", 63, 2, 70, 2),
    Sketcher.Constraint("Equal", 1, 3),
    Sketcher.Constraint("Equal", 23, 25),
    Sketcher.Constraint("Equal", 41, 45),
    Sketcher.Constraint("Radius", 0, 39.0),
    Sketcher.Constraint("Radius", 16, 35.0),
    Sketcher.Constraint("Radius", 18, 22.0),
    Sketcher.Constraint("Radius", 40, 18.0),
    Sketcher.Constraint("Radius", 42, 9.5),
    Sketcher.Constraint("Radius", 60, 5.5),
    Sketcher.Constraint("Distance", 2, 4.0),
    Sketcher.Constraint("DistanceY", 0, 3, -1, 1, 1.0),
    Sketcher.Constraint("DistanceY", -1, 1, 18, 1, 1.0),
    Sketcher.Constraint("DistanceY", 3, 2, -1, 1, 33.577101),
    Sketcher.Constraint("DistanceX", -1, 1, 16, 2, 22.294399),
    Sketcher.Constraint("DistanceX", 62, 1, 62, 2, 1.173457),
    Sketcher.Constraint("DistanceY", -1, 1, 41, 2, 5.301771),
    Sketcher.Constraint("DistanceX", 63, 2, -1, 1, 1.420508),
    Sketcher.Constraint("Distance", 1, 18.494244),
])
pad2 = body.newObject("PartDesign::Pad", "Pad001")
pad2.Profile = sketch4
pad2.Length = 2

# Sketch on XZ plane
sketch5 = body.newObject("Sketcher::SketchObject", "Sketch004")
sketch5.AttachmentSupport = (doc.getObject("XZ_Plane"), [""])
sketch5.MapMode = "FlatFace"
sketch5.AttachmentOffset = App.Placement(App.Vector(0, 0, -2), App.Rotation())
sketch5.addGeometry([
    Part.LineSegment(App.Vector(-37, -19.3, 0), App.Vector(-37, -13.328828, 0)),  # 0
    Part.ArcOfCircle(Part.Circle(App.Vector(0, -1, 0), App.Vector(0, 0, 1), 39), math.radians(-161.57133), math.radians(-152.015624)),  # 1
    Part.LineSegment(App.Vector(-34.439948, -19.3, 0), App.Vector(-37, -19.3, 0)),  # 2
    Part.LineSegment(App.Vector(-30, -38.473945, 0), App.Vector(-30, -25.919872, 0)),  # 3
    Part.ArcOfCircle(Part.Circle(App.Vector(0, -1, 0), App.Vector(0, 0, 1), 39), math.radians(-140.284863), math.radians(-129.230908)),  # 4
    Part.LineSegment(App.Vector(-24.665443, -31.209534, 0), App.Vector(-30, -38.473945, 0)),  # 5
    Part.LineSegment(App.Vector(37, -13.328828, 0), App.Vector(37, -19.3, 0)),  # 6
    Part.LineSegment(App.Vector(37, -19.3, 0), App.Vector(34.439948, -19.3, 0)),  # 7
    Part.ArcOfCircle(Part.Circle(App.Vector(0, -1, 0), App.Vector(0, 0, 1), 39), math.radians(-27.984376), math.radians(-18.42867)),  # 8
    Part.LineSegment(App.Vector(30, -38.473945, 0), App.Vector(24.665443, -31.209534, 0)),  # 9
    Part.ArcOfCircle(Part.Circle(App.Vector(0, -1, 0), App.Vector(0, 0, 1), 39), math.radians(-50.769092), math.radians(-39.715137)),  # 10
    Part.LineSegment(App.Vector(30, -25.919872, 0), App.Vector(30, -38.473945, 0)),  # 11
], False)
sketch5.addConstraint([
    Sketcher.Constraint("Coincident", 0, 2, 1, 1),
    Sketcher.Constraint("Coincident", 1, 2, 2, 1),
    Sketcher.Constraint("Coincident", 2, 2, 0, 1),
    Sketcher.Constraint("Coincident", 3, 2, 4, 1),
    Sketcher.Constraint("Coincident", 4, 2, 5, 1),
    Sketcher.Constraint("Coincident", 5, 2, 3, 1),
    Sketcher.Constraint("Coincident", 6, 2, 7, 1),
    Sketcher.Constraint("Coincident", 7, 2, 8, 1),
    Sketcher.Constraint("Coincident", 8, 2, 6, 1),
    Sketcher.Constraint("Coincident", 9, 2, 10, 1),
    Sketcher.Constraint("Coincident", 10, 2, 11, 1),
    Sketcher.Constraint("Coincident", 11, 2, 9, 1),
    Sketcher.Constraint("Vertical", 0),
    Sketcher.Constraint("Horizontal", 2),
    Sketcher.Constraint("Vertical", 3),
    Sketcher.Constraint("Vertical", 6),
    Sketcher.Constraint("Horizontal", 7),
    Sketcher.Constraint("Vertical", 11),
    Sketcher.Constraint("Coincident", 4, 3, 1, 3),
    Sketcher.Constraint("Coincident", 8, 3, 1, 3),
    Sketcher.Constraint("Coincident", 10, 3, 1, 3),
    Sketcher.Constraint("Equal", 1, 4),
    Sketcher.Constraint("Equal", 4, 8),
    Sketcher.Constraint("Equal", 8, 10),
    Sketcher.Constraint("Symmetric", 2, 2, 6, 2, -2),
    Sketcher.Constraint("Symmetric", 4, 2, 9, 2, -2),
    Sketcher.Constraint("Symmetric", 5, 2, 11, 2, -2),
    Sketcher.Constraint("Radius", 1, 39.0),
    Sketcher.Constraint("DistanceY", 1, 3, -1, 1, 1.0),
    Sketcher.Constraint("DistanceX", 0, 2, -1, 1, 37.0),
    Sketcher.Constraint("DistanceX", 3, 2, -1, 1, 30.0),
    Sketcher.Constraint("DistanceY", 1, 2, -1, 1, 19.3),
    Sketcher.Constraint("DistanceY", 3, 1, 3, 2, 12.554074),
    Sketcher.Constraint("DistanceY", 5, 2, 4, 2, 7.264412),
])
pad3 = body.newObject("PartDesign::Pad", "Pad002")
pad3.Profile = sketch5
pad3.Length = 2

# Sketch on XZ plane
sketch6 = body.newObject("Sketcher::SketchObject", "Sketch005")
sketch6.AttachmentSupport = (doc.getObject("XZ_Plane"), [""])
sketch6.MapMode = "FlatFace"
sketch6.AttachmentOffset = App.Placement(App.Vector(0, 0, -2), App.Rotation())
sketch6.addGeometry([
    Part.Circle(App.Vector(0, -1, 0), App.Vector(0, 0, 1), 5.5),  # 0
    Part.Circle(App.Vector(34, 45.3, 0), App.Vector(0, 0, 1), 1.6),  # 1
    Part.Circle(App.Vector(-34, 45.3, 0), App.Vector(0, 0, 1), 1.6),  # 2
    Part.Circle(App.Vector(34, -47.3, 0), App.Vector(0, 0, 1), 1.6),  # 3
    Part.Circle(App.Vector(-34, -47.3, 0), App.Vector(0, 0, 1), 1.6),  # 4
], False)
sketch6.addConstraint([
    Sketcher.Constraint("Equal", 1, 2),
    Sketcher.Constraint("Equal", 2, 3),
    Sketcher.Constraint("Equal", 3, 4),
    Sketcher.Constraint("Symmetric", 1, 3, 2, 3, -2),
    Sketcher.Constraint("Symmetric", 3, 3, 4, 3, -2),
    Sketcher.Constraint("PointOnObject", 0, 3, -2),
    Sketcher.Constraint("Vertical", 1, 3, 3, 3),
    Sketcher.Constraint("Diameter", 0, 11.0),
    Sketcher.Constraint("Diameter", 1, 3.2),
    Sketcher.Constraint("DistanceY", 0, 3, -1, 1, 1.0),
    Sketcher.Constraint("DistanceX", -1, 1, 1, 3, 34.0),
    Sketcher.Constraint("DistanceY", -1, 1, 1, 3, 45.3),
    Sketcher.Constraint("DistanceY", 3, 3, -1, 1, 47.3),
])
pocket3 = body.newObject("PartDesign::Pocket", "Pocket002")
pocket3.Profile = sketch6
pocket3.Length = 2
pocket3.Reversed = True
doc.recompute()

fillet = body.newObject("PartDesign::Fillet", "Fillet")
fillet.Base = (pocket3, edges_at(pocket3, [
    (-7.109, 1, -7.302),
    (3.885, 1, 7.669),
    (-12.2, 1, -14.235),
    (8.976, 1, 14.602),
    (-8.976, 1, 14.602),
    (12.2, 1, -14.235),
    (-14.58, 1, -17.475),
    (11.356, 1, 17.843),
    (-22.294, 1, -27.981),
    (19.07, 1, 28.348),
    (-19.07, 1, 28.348),
    (22.294, 1, -27.981),
    (-11.356, 1, 17.843),
    (14.58, 1, -17.475),
    (-14.58, 1, 15.475),
    (11.356, 1, -19.843),
    (-11.356, 1, -19.843),
    (14.58, 1, 15.475),
    (-19.07, 1, -30.348),
    (22.294, 1, 25.981),
    (-22.294, 1, 25.981),
    (19.07, 1, -30.348),
    (-7.109, 1, 5.302),
    (3.885, 1, -9.669),
    (-3.885, 1, -9.669),
    (7.109, 1, 5.302),
    (-8.976, 1, -16.602),
    (12.2, 1, 12.235),
    (-12.2, 1, 12.235),
    (8.976, 1, -16.602),
    (-21.909, 1, 1),
    (21.909, 1, 1),
    (-34.943, 1, 1),
    (34.943, 1, 1),
    (-9.287, 1, 1),
    (9.287, 1, 1),
    (-17.889, 1, 1),
    (17.889, 1, 1),
    (-21.909, 1, -3),
    (21.909, 1, -3),
    (-34.943, 1, -3),
    (34.943, 1, -3),
    (-9.287, 1, -3),
    (9.287, 1, -3),
    (-3.885, 1, 7.669),
    (7.109, 1, -7.302),
    (-17.889, 1, -3),
    (17.889, 1, -3),
    (24.665, 1, 29.21),
    (-21.441, 1, -33.577),
    (37, 1, 11.329),
    (37, 1, 41.3),
    (33.562, 1, 41.324),
    (-24.665, 1, 29.21),
    (21.441, 1, -33.577),
    (-30, 1, -45.232),
    (-30, 1, -48.3),
    (30, 1, -48.3),
    (30, 1, -45.232),
    (-33.562, 1, 41.324),
    (-37, 1, 41.3),
    (-37, 1, 11.329),
    (-21.441, 1, 31.577),
    (21.441, 1, 31.577),
    (30.338, 1, 43.692),
    (30, 1, 48.3),
    (-30, 1, 48.3),
    (-30.338, 1, 43.692),
]))
fillet.Radius = 1.5
doc.recompute()

fillet2 = body.newObject("PartDesign::Fillet", "Fillet001")
fillet2.Base = (fillet, edges_at(fillet, [
    (41, 1, 52.3),
    (-41, 1, 52.3),
    (-41, 1, -52.3),
    (41, 1, -52.3),
]))
fillet2.Radius = 2

doc.recompute()
